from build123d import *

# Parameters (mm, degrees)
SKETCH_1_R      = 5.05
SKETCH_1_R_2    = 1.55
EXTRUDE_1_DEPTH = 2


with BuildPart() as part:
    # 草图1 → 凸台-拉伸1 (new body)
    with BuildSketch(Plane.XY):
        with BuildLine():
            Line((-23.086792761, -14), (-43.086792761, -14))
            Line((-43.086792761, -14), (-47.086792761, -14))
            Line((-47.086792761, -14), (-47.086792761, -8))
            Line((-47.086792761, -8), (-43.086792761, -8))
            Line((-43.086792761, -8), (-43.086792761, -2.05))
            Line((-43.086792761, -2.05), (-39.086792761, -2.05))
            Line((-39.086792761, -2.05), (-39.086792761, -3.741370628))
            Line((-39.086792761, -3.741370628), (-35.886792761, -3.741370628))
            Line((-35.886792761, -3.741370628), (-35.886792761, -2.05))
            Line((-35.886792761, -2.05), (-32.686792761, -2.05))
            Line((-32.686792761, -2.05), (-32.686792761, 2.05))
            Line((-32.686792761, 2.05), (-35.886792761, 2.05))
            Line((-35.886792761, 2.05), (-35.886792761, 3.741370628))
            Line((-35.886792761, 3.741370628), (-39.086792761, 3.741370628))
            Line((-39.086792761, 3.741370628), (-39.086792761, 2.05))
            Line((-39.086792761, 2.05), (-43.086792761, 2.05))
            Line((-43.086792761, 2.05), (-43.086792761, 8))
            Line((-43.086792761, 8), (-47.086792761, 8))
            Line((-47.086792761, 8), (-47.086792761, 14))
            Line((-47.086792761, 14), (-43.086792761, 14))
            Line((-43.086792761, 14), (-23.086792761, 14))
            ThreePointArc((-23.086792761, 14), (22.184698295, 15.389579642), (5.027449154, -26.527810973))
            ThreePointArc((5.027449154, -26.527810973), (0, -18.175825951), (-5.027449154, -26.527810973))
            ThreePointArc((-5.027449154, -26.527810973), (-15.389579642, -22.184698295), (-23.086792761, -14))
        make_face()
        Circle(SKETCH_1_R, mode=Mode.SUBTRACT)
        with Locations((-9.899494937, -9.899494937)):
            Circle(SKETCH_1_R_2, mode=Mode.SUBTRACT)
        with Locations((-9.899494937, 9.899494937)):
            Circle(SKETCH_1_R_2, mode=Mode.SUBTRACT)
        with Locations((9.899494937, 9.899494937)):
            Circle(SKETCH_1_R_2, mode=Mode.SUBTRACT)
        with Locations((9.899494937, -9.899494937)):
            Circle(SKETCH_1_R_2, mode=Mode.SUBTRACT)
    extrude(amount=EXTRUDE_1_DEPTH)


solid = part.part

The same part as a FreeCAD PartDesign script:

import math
import FreeCAD as App
import Part
import Sketcher
from FreeCAD import Vector

doc = App.newDocument("Part")
body = doc.addObject("PartDesign::Body", "Body")

# Sketch on XY plane
sketch1 = body.newObject("Sketcher::SketchObject", "Sketch")
sketch1.AttachmentSupport = (doc.getObject("XY_Plane"), [""])
sketch1.MapMode = "FlatFace"
sketch1.addGeometry([
    Part.LineSegment(Vector(-47.086793, -14, 0), Vector(-23.086793, -14, 0)),  # 0
    Part.ArcOfCircle(Part.Circle(Vector(0, 0, 0), Vector(0, 0, 1), 27), math.radians(-148.767071), math.radians(-100.731209)),  # 1
    Part.ArcOfCircle(Part.Circle(Vector(0, -23.864946, 0), Vector(0, 0, 1), 5.689121), math.radians(-27.908609), math.radians(207.908609)),  # 2
    Part.ArcOfCircle(Part.Circle(Vector(0, 0, 0), Vector(0, 0, 1), 27), math.radians(-79.268791), math.radians(148.767071)),  # 3
    Part.LineSegment(Vector(-23.086793, 14, 0), Vector(-47.086793, 14, 0)),  # 4
    Part.LineSegment(Vector(-47.086793, 14, 0), Vector(-47.086793, 8, 0)),  # 5
    Part.LineSegment(Vector(-47.086793, 8, 0), Vector(-43.086793, 8, 0)),  # 6
    Part.LineSegment(Vector(-43.086793, 8, 0), Vector(-43.086793, 2.05, 0)),  # 7
    Part.LineSegment(Vector(-43.086793, 2.05, 0), Vector(-39.086793, 2.05, 0)),  # 8
    Part.LineSegment(Vector(-39.086793, 2.05, 0), Vector(-39.086793, 3.741371, 0)),  # 9
    Part.LineSegment(Vector(-39.086793, 3.741371, 0), Vector(-35.886793, 3.741371, 0)),  # 10
    Part.LineSegment(Vector(-35.886793, 3.741371, 0), Vector(-35.886793, 2.05, 0)),  # 11
    Part.LineSegment(Vector(-35.886793, 2.05, 0), Vector(-32.686793, 2.05, 0)),  # 12
    Part.LineSegment(Vector(-32.686793, 2.05, 0), Vector(-32.686793, -2.05, 0)),  # 13
    Part.LineSegment(Vector(-32.686793, -2.05, 0), Vector(-35.886793, -2.05, 0)),  # 14
    Part.LineSegment(Vector(-35.886793, -2.05, 0), Vector(-35.886793, -3.741371, 0)),  # 15
    Part.LineSegment(Vector(-35.886793, -3.741371, 0), Vector(-39.086793, -3.741371, 0)),  # 16
    Part.LineSegment(Vector(-39.086793, -3.741371, 0), Vector(-39.086793, -2.05, 0)),  # 17
    Part.LineSegment(Vector(-39.086793, -2.05, 0), Vector(-43.086793, -2.05, 0)),  # 18
    Part.LineSegment(Vector(-43.086793, -2.05, 0), Vector(-43.086793, -8, 0)),  # 19
    Part.LineSegment(Vector(-43.086793, -8, 0), Vector(-47.086793, -8, 0)),  # 20
    Part.LineSegment(Vector(-47.086793, -8, 0), Vector(-47.086793, -14, 0)),  # 21
    Part.Circle(Vector(9.899495, -9.899495, 0), Vector(0, 0, 1), 1.55),  # 22
    Part.Circle(Vector(-9.899495, -9.899495, 0), Vector(0, 0, 1), 1.55),  # 23
    Part.Circle(Vector(0, 0, 0), Vector(0, 0, 1), 5.05),  # 24
    Part.Circle(Vector(9.899495, 9.899495, 0), Vector(0, 0, 1), 1.55),  # 25
    Part.Circle(Vector(-9.899495, 9.899495, 0), Vector(0, 0, 1), 1.55),  # 26
], False)
sketch1.addConstraint([
    Sketcher.Constraint("Coincident", 0, 2, 1, 1),
    Sketcher.Constraint("Coincident", 1, 2, 2, 2),
    Sketcher.Constraint("Coincident", 2, 1, 3, 1),
    Sketcher.Constraint("Coincident", 3, 2, 4, 1),
    Sketcher.Constraint("Coincident", 4, 2, 5, 1),
    Sketcher.Constraint("Coincident", 5, 2, 6, 1),
    Sketcher.Constraint("Coincident", 6, 2, 7, 1),
    Sketcher.Constraint("Coincident", 7, 2, 8, 1),
    Sketcher.Constraint("Coincident", 8, 2, 9, 1),
    Sketcher.Constraint("Coincident", 9, 2, 10, 1),
    Sketcher.Constraint("Coincident", 10, 2, 11, 1),
    Sketcher.Constraint("Coincident", 11, 2, 12, 1),
    Sketcher.Constraint("Coincident", 12, 2, 13, 1),
    Sketcher.Constraint("Coincident", 13, 2, 14, 1),
    Sketcher.Constraint("Coincident", 14, 2, 15, 1),
    Sketcher.Constraint("Coincident", 15, 2, 16, 1),
    Sketcher.Constraint("Coincident", 16, 2, 17, 1),
    Sketcher.Constraint("Coincident", 17, 2, 18, 1),
    Sketcher.Constraint("Coincident", 18, 2, 19, 1),
    Sketcher.Constraint("Coincident", 19, 2, 20, 1),
    Sketcher.Constraint("Coincident", 20, 2, 21, 1),
    Sketcher.Constraint("Coincident", 21, 2, 0, 1),
    Sketcher.Constraint("Horizontal", 0),
    Sketcher.Constraint("Horizontal", 4),
    Sketcher.Constraint("Vertical", 5),
    Sketcher.Constraint("Horizontal", 6),
    Sketcher.Constraint("Vertical", 7),
    Sketcher.Constraint("Horizontal", 8),
    Sketcher.Constraint("Vertical", 9),
    Sketcher.Constraint("Horizontal", 10),
    Sketcher.Constraint("Vertical", 11),
    Sketcher.Constraint("Horizontal", 12),
    Sketcher.Constraint("Vertical", 13),
    Sketcher.Constraint("Horizontal", 14),
    Sketcher.Constraint("Vertical", 15),
    Sketcher.Constraint("Horizontal", 16),
    Sketcher.Constraint("Vertical", 17),
    Sketcher.Constraint("Horizontal", 18),
    Sketcher.Constraint("Vertical", 19),
    Sketcher.Constraint("Horizontal", 20),
    Sketcher.Constraint("Vertical", 21),
    Sketcher.Constraint("Coincident", 1, 3, -1, 1),
    Sketcher.Constraint("Coincident", 3, 3, -1, 1),
    Sketcher.Constraint("Coincident", 24, 3, -1, 1),
    Sketcher.Constraint("Equal", 1, 3),
    Sketcher.Constraint("Equal", 22, 23),
    Sketcher.Constraint("Equal", 23, 25),
    Sketcher.Constraint("Equal", 25, 26),
    Sketcher.Constraint("Symmetric", 23, 3, 25, 3, -1, 1),
    Sketcher.Constraint("Symmetric", 22, 3, 26, 3, -1, 1),
    Sketcher.Constraint("Symmetric", 22, 3, 23, 3, -2),
    Sketcher.Constraint("Symmetric", 11, 2, 14, 2, -1),
    Sketcher.Constraint("Symmetric", 9, 2, 16, 2, -1),
    Sketcher.Constraint("Symmetric", 7, 2, 18, 2, -1),
    Sketcher.Constraint("Symmetric", 5, 2, 20, 2, -1),
    Sketcher.Constraint("PointOnObject", 2, 3, -2),
    Sketcher.Constraint("Horizontal", 8, 2, 11, 2),
    Sketcher.Constraint("Vertical", 0, 2, 3, 2),
    Sketcher.Constraint("Equal", 6, 8),
    Sketcher.Constraint("Equal", 10, 12),
    Sketcher.Constraint("Radius", 1, 27.0),
    Sketcher.Constraint("Diameter", 22, 3.1),
    Sketcher.Constraint("Diameter", 24, 10.1),
    Sketcher.Constraint("DistanceX", 0, 1, 0, 2, 24.0),
    Sketcher.Constraint("DistanceX", 6, 1, 6, 2, 4.0),
    Sketcher.Constraint("DistanceY", 5, 2, 5, 1, 6.0),
    Sketcher.Constraint("DistanceX", 10, 1, 10, 2, 3.2),
    Sketcher.Constraint("DistanceY", 13, 2, 13, 1, 4.1),
    Sketcher.Constraint("DistanceY", 0, 2, -1, 1, 14.0),
    Sketcher.Constraint("Radius", 2, 5.689121),
    Sketcher.Constraint("DistanceY", 9, 1, 9, 2, 1.691371),
    Sketcher.Constraint("DistanceX", 1, 2, 2, 1, 10.054898),
    Sketcher.Constraint("DistanceY", 2, 3, 22, 3, 13.965452),
    Sketcher.Constraint("DistanceX", 23, 3, 22, 3, 19.79899),
])
pad1 = body.newObject("PartDesign::Pad", "Pad")
pad1.Profile = sketch1
pad1.Length = 2

doc.recompute()
